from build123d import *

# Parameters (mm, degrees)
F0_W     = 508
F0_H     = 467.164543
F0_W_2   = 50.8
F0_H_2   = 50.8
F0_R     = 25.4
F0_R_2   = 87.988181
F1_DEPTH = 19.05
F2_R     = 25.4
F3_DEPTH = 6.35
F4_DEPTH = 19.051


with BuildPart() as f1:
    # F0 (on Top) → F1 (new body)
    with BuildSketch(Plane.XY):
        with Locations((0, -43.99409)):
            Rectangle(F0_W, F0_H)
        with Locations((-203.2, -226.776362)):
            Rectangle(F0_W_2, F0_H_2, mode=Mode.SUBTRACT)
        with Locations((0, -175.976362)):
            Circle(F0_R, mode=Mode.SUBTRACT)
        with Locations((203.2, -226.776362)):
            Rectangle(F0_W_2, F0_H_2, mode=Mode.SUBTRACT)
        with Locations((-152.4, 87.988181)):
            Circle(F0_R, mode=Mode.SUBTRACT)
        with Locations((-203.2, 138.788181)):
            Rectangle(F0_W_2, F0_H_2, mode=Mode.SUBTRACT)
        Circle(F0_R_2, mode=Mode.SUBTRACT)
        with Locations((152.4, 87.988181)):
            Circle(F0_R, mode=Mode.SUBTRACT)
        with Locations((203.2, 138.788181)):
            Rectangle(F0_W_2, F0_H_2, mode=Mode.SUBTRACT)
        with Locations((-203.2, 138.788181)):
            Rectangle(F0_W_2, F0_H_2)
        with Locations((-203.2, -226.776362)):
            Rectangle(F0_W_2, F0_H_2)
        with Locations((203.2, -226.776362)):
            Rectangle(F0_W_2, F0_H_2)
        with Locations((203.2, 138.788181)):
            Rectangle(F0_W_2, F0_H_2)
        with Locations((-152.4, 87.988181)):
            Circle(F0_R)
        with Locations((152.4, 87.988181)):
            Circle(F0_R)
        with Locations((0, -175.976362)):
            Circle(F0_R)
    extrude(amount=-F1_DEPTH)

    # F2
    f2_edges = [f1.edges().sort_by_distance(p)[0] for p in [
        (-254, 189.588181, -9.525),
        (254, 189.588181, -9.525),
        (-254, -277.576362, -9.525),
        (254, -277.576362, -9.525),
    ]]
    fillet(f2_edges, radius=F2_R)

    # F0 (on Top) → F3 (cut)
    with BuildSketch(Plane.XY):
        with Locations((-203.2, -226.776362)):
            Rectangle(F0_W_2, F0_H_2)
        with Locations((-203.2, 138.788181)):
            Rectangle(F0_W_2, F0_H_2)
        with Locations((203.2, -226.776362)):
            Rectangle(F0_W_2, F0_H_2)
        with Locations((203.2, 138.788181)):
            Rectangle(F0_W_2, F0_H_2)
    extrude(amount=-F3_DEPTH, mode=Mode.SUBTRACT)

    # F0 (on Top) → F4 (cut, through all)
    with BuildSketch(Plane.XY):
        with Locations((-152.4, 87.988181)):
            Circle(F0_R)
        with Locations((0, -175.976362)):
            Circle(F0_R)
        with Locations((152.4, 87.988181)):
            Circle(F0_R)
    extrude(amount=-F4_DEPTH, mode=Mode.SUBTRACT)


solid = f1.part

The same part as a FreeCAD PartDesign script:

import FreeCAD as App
import Part
import Sketcher
Q = App.Units.Quantity


def edges_at(feature, points):
    """Names of the edges that pass closest to the given points."""
    edges = feature.Shape.Edges
    near = lambda p: min(range(len(edges)), key=lambda i: edges[i].distToShape(Part.Vertex(*p))[0])
    return sorted({f"Edge{near(p) + 1}" for p in points})

doc = App.newDocument("Part")
body = doc.addObject("PartDesign::Body", "Body")

# Sketch on XY plane
sketch1 = doc.addObject("Sketcher::SketchObject", "Sketch")
body.addObject(sketch1)
sketch1.AttachmentSupport = (doc.XY_Plane, [""])
sketch1.MapMode = "FlatFace"
sketch1.addGeometry(Part.LineSegment(App.Vector(-254, 189.588181, 0), App.Vector(-254, -277.576362, 0)), False)
sketch1.addGeometry(Part.LineSegment(App.Vector(-254, -277.576362, 0), App.Vector(254, -277.576362, 0)), False)
sketch1.addGeometry(Part.LineSegment(App.Vector(254, -277.576362, 0), App.Vector(254, 189.588181, 0)), False)
sketch1.addGeometry(Part.LineSegment(App.Vector(254, 189.588181, 0), App.Vector(-254, 189.588181, 0)), False)
sketch1.addGeometry(Part.Circle(App.Vector(0, 0, 0), App.Vector(0, 0, 1), 87.988181), False)
sketch1.addConstraint(Sketcher.Constraint("Coincident", 0, 2, 1, 1))
sketch1.addConstraint(Sketcher.Constraint("Coincident", 1, 2, 2, 1))
sketch1.addConstraint(Sketcher.Constraint("Coincident", 2, 2, 3, 1))
sketch1.addConstraint(Sketcher.Constraint("Coincident", 3, 2, 0, 1))
sketch1.addConstraint(Sketcher.Constraint("Vertical", 0))
sketch1.addConstraint(Sketcher.Constraint("Horizontal", 1))
sketch1.addConstraint(Sketcher.Constraint("Vertical", 2))
sketch1.addConstraint(Sketcher.Constraint("Horizontal", 3))
sketch1.addConstraint(Sketcher.Constraint("Coincident", 4, 3, -1, 1))
sketch1.addConstraint(Sketcher.Constraint("DistanceX", 1, 1, 1, 2, Q("20 in")))
sketch1.addConstraint(Sketcher.Constraint("DistanceX", 0, 2, -1, 1, Q("10 in")))
sketch1.addConstraint(Sketcher.Constraint("Diameter", 4, Q("175.976362 mm")))
sketch1.addConstraint(Sketcher.Constraint("DistanceY", 0, 2, 0, 1, Q("467.164543 mm")))
sketch1.addConstraint(Sketcher.Constraint("DistanceY", 0, 2, -1, 1, Q("277.576362 mm")))
pad1 = doc.addObject("PartDesign::Pad", "Pad")
body.addObject(pad1)
pad1.Profile = sketch1
pad1.Length = Q("0.75 in")
pad1.Reversed = True
doc.recompute()

fillet = doc.addObject("PartDesign::Fillet", "Fillet")
body.addObject(fillet)
fillet.Base = (pad1, edges_at(pad1, [
    (-254, 189.588, -9.525),
    (254, 189.588, -9.525),
    (-254, -277.576, -9.525),
    (254, -277.576, -9.525),
]))
fillet.Radius = Q("1 in")

# Sketch on XY plane
sketch2 = doc.addObject("Sketcher::SketchObject", "Sketch001")
body.addObject(sketch2)
sketch2.AttachmentSupport = (doc.XY_Plane, [""])
sketch2.MapMode = "FlatFace"
sketch2.addGeometry(Part.LineSegment(App.Vector(-228.6, -201.376362, 0), App.Vector(-228.6, -252.176362, 0)), False)
sketch2.addGeometry(Part.LineSegment(App.Vector(-228.6, -252.176362, 0), App.Vector(-177.8, -252.176362, 0)), False)
sketch2.addGeometry(Part.LineSegment(App.Vector(-177.8, -252.176362, 0), App.Vector(-177.8, -201.376362, 0)), False)
sketch2.addGeometry(Part.LineSegment(App.Vector(-177.8, -201.376362, 0), App.Vector(-228.6, -201.376362, 0)), False)
sketch2.addGeometry(Part.LineSegment(App.Vector(-228.6, 164.188181, 0), App.Vector(-228.6, 113.388181, 0)), False)
sketch2.addGeometry(Part.LineSegment(App.Vector(-228.6, 113.388181, 0), App.Vector(-177.8, 113.388181, 0)), False)
sketch2.addGeometry(Part.LineSegment(App.Vector(-177.8, 113.388181, 0), App.Vector(-177.8, 164.188181, 0)), False)
sketch2.addGeometry(Part.LineSegment(App.Vector(-177.8, 164.188181, 0), App.Vector(-228.6, 164.188181, 0)), False)
sketch2.addGeometry(Part.LineSegment(App.Vector(177.8, -201.376362, 0), App.Vector(177.8, -252.176362, 0)), False)
sketch2.addGeometry(Part.LineSegment(App.Vector(177.8, -252.176362, 0), App.Vector(228.6, -252.176362, 0)), False)
sketch2.addGeometry(Part.LineSegment(App.Vector(228.6, -252.176362, 0), App.Vector(228.6, -201.376362, 0)), False)
sketch2.addGeometry(Part.LineSegment(App.Vector(228.6, -201.376362, 0), App.Vector(177.8, -201.376362, 0)), False)
sketch2.addGeometry(Part.LineSegment(App.Vector(177.8, 164.188181, 0), App.Vector(177.8, 113.388181, 0)), False)
sketch2.addGeometry(Part.LineSegment(App.Vector(177.8, 113.388181, 0), App.Vector(228.6, 113.388181, 0)), False)
sketch2.addGeometry(Part.LineSegment(App.Vector(228.6, 113.388181, 0), App.Vector(228.6, 164.188181, 0)), False)
sketch2.addGeometry(Part.LineSegment(App.Vector(228.6, 164.188181, 0), App.Vector(177.8, 164.188181, 0)), False)
sketch2.addConstraint(Sketcher.Constraint("Coincident", 0, 2, 1, 1))
sketch2.addConstraint(Sketcher.Constraint("Coincident", 1, 2, 2, 1))
sketch2.addConstraint(Sketcher.Constraint("Coincident", 2, 2, 3, 1))
sketch2.addConstraint(Sketcher.Constraint("Coincident", 3, 2, 0, 1))
sketch2.addConstraint(Sketcher.Constraint("Coincident", 4, 2, 5, 1))
sketch2.addConstraint(Sketcher.Constraint("Coincident", 5, 2, 6, 1))
sketch2.addConstraint(Sketcher.Constraint("Coincident", 6, 2, 7, 1))
sketch2.addConstraint(Sketcher.Constraint("Coincident", 7, 2, 4, 1))
sketch2.addConstraint(Sketcher.Constraint("Coincident", 8, 2, 9, 1))
sketch2.addConstraint(Sketcher.Constraint("Coincident", 9, 2, 10, 1))
sketch2.addConstraint(Sketcher.Constraint("Coincident", 10, 2, 11, 1))
sketch2.addConstraint(Sketcher.Constraint("Coincident", 11, 2, 8, 1))
sketch2.addConstraint(Sketcher.Constraint("Coincident", 12, 2, 13, 1))
sketch2.addConstraint(Sketcher.Constraint("Coincident", 13, 2, 14, 1))
sketch2.addConstraint(Sketcher.Constraint("Coincident", 14, 2, 15, 1))
sketch2.addConstraint(Sketcher.Constraint("Coincident", 15, 2, 12, 1))
sketch2.addConstraint(Sketcher.Constraint("Vertical", 0))
sketch2.addConstraint(Sketcher.Constraint("Horizontal", 1))
sketch2.addConstraint(Sketcher.Constraint("Vertical", 2))
sketch2.addConstraint(Sketcher.Constraint("Horizontal", 3))
sketch2.addConstraint(Sketcher.Constraint("Vertical", 4))
sketch2.addConstraint(Sketcher.Constraint("Horizontal", 5))
sketch2.addConstraint(Sketcher.Constraint("Vertical", 6))
sketch2.addConstraint(Sketcher.Constraint("Horizontal", 7))
sketch2.addConstraint(Sketcher.Constraint("Vertical", 8))
sketch2.addConstraint(Sketcher.Constraint("Horizontal", 9))
sketch2.addConstraint(Sketcher.Constraint("Vertical", 10))
sketch2.addConstraint(Sketcher.Constraint("Horizontal", 11))
sketch2.addConstraint(Sketcher.Constraint("Vertical", 12))
sketch2.addConstraint(Sketcher.Constraint("Horizontal", 13))
sketch2.addConstraint(Sketcher.Constraint("Vertical", 14))
sketch2.addConstraint(Sketcher.Constraint("Horizontal", 15))
sketch2.addConstraint(Sketcher.Constraint("Symmetric", 1, 2, 8, 2, -2))
sketch2.addConstraint(Sketcher.Constraint("Symmetric", 3, 2, 10, 2, -2))
sketch2.addConstraint(Sketcher.Constraint("Symmetric", 5, 2, 12, 2, -2))
sketch2.addConstraint(Sketcher.Constraint("Symmetric", 7, 2, 14, 2, -2))
sketch2.addConstraint(Sketcher.Constraint("Vertical", 3, 2, 4, 2))
sketch2.addConstraint(Sketcher.Constraint("Vertical", 2, 2, 5, 2))
sketch2.addConstraint(Sketcher.Constraint("Equal", 15, 0))
sketch2.addConstraint(Sketcher.Constraint("Equal", 2, 4))
sketch2.addConstraint(Sketcher.Constraint("DistanceX", 1, 1, 1, 2, Q("2 in")))
sketch2.addConstraint(Sketcher.Constraint("DistanceX", 0, 2, -1, 1, Q("9 in")))
sketch2.addConstraint(Sketcher.Constraint("DistanceY", 2, 2, -1, 1, Q("201.376362 mm")))
sketch2.addConstraint(Sketcher.Constraint("DistanceY", -1, 1, 4, 2, Q("113.388181 mm")))
pocket1 = doc.addObject("PartDesign::Pocket", "Pocket")
body.addObject(pocket1)
pocket1.Profile = sketch2
pocket1.Length = Q("0.25 in")

# Sketch on XY plane
sketch3 = doc.addObject("Sketcher::SketchObject", "Sketch002")
body.addObject(sketch3)
sketch3.AttachmentSupport = (doc.XY_Plane, [""])
sketch3.MapMode = "FlatFace"
sketch3.addGeometry(Part.Circle(App.Vector(-152.4, 87.988181, 0), App.Vector(0, 0, 1), 25.4), False)
sketch3.addGeometry(Part.Circle(App.Vector(0, -175.976362, 0), App.Vector(0, 0, 1), 25.4), False)
sketch3.addGeometry(Part.Circle(App.Vector(152.4, 87.988181, 0), App.Vector(0, 0, 1), 25.4), False)
sketch3.addConstraint(Sketcher.Constraint("Equal", 0, 1))
sketch3.addConstraint(Sketcher.Constraint("Equal", 1, 2))
sketch3.addConstraint(Sketcher.Constraint("Symmetric", 0, 3, 2, 3, -2))
sketch3.addConstraint(Sketcher.Constraint("PointOnObject", 1, 3, -2))
sketch3.addConstraint(Sketcher.Constraint("Diameter", 0, Q("2 in")))
sketch3.addConstraint(Sketcher.Constraint("DistanceX", 0, 3, -1, 1, Q("6 in")))
sketch3.addConstraint(Sketcher.Constraint("DistanceY", -1, 1, 0, 3, Q("87.988181 mm")))
sketch3.addConstraint(Sketcher.Constraint("DistanceY", 1, 3, -1, 1, Q("175.976362 mm")))
pocket2 = doc.addObject("PartDesign::Pocket", "Pocket001")
body.addObject(pocket2)
pocket2.Profile = sketch3
pocket2.Type = "ThroughAll"

doc.recompute()
